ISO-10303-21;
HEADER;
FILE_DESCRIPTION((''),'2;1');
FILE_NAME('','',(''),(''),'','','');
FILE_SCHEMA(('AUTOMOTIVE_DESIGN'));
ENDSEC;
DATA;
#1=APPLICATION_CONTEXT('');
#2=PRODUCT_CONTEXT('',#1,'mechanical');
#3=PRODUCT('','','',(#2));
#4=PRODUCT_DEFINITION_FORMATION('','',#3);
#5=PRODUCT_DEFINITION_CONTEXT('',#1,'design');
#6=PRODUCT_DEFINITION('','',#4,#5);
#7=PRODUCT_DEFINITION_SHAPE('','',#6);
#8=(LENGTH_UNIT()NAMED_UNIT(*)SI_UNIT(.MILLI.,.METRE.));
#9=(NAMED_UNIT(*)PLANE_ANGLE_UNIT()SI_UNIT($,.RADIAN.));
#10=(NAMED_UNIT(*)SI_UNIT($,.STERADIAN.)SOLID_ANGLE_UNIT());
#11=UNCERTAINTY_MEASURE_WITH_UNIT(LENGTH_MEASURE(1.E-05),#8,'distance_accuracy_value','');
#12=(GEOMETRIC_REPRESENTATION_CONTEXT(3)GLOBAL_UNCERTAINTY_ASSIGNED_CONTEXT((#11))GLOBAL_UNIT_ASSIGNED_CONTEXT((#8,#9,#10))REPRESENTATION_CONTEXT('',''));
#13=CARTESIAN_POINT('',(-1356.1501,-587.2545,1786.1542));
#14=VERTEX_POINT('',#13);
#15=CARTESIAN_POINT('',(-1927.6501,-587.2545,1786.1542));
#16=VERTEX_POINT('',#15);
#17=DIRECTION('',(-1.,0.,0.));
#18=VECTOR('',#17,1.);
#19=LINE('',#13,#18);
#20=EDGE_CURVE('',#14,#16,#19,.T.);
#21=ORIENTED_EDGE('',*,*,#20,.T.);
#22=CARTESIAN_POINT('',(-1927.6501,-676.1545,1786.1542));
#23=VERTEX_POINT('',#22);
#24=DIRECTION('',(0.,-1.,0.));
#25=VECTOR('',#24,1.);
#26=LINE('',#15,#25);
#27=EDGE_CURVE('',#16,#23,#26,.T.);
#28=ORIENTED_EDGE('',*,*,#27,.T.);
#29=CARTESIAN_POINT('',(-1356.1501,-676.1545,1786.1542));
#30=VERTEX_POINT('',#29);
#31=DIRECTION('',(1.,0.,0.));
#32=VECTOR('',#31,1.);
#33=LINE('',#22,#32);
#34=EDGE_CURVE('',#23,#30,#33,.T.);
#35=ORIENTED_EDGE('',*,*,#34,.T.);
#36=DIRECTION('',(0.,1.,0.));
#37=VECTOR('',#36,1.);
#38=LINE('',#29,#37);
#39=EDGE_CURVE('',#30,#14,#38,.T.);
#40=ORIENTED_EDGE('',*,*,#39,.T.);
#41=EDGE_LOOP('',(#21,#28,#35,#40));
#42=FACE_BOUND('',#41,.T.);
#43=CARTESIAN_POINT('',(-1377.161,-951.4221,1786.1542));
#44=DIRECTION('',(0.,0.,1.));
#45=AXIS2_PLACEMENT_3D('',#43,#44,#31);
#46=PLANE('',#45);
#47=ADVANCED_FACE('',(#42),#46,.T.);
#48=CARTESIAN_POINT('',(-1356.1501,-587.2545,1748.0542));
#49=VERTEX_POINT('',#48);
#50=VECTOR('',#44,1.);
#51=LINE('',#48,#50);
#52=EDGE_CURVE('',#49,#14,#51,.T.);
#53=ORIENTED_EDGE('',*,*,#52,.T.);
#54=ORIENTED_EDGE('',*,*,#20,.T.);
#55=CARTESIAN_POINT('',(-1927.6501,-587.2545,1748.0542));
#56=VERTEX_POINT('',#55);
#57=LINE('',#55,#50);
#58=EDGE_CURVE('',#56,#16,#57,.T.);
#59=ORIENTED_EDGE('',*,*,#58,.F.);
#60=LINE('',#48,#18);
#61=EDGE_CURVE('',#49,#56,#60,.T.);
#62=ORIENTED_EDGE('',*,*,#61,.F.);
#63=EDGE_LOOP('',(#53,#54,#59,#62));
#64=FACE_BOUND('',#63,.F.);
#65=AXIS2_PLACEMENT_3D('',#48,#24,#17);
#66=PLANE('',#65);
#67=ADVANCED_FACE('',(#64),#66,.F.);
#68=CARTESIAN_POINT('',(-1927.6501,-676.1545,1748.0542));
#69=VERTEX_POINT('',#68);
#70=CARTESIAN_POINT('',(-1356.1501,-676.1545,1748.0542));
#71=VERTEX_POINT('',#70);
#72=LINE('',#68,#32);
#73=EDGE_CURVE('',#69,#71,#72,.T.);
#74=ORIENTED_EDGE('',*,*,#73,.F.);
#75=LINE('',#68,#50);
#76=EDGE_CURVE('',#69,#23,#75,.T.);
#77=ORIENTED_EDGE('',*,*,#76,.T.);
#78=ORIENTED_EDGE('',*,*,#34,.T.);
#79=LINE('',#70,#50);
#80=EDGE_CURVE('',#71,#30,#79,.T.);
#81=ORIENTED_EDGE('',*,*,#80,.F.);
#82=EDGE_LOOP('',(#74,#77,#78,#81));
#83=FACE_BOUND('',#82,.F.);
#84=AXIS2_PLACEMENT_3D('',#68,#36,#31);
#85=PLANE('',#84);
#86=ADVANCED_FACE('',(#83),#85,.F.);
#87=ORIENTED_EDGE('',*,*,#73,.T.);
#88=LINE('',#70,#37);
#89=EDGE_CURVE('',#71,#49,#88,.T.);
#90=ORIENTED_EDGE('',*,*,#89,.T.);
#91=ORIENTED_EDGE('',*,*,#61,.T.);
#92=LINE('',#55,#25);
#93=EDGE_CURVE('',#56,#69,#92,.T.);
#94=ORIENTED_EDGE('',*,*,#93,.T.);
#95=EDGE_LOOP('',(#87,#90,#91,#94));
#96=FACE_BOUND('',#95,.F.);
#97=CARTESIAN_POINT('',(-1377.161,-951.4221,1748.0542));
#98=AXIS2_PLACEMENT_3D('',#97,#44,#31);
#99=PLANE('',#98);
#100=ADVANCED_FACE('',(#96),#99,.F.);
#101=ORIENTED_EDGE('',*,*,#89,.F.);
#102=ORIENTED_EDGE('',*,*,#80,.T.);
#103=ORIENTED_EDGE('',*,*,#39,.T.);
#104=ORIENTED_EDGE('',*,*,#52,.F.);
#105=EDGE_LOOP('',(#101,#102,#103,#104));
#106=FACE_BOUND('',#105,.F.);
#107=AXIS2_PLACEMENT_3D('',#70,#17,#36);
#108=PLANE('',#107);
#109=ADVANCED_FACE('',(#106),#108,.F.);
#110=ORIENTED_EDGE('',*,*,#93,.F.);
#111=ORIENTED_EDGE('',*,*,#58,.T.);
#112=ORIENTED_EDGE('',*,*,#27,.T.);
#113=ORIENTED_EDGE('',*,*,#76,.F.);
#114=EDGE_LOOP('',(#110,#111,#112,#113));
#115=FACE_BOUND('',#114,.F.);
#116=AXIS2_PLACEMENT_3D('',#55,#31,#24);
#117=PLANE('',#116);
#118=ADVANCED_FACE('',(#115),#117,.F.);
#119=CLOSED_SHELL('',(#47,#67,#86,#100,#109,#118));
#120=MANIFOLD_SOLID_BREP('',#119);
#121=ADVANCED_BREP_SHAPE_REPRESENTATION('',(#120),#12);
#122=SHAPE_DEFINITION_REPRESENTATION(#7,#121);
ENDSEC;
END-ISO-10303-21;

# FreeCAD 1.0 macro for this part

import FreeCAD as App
import Part
import Sketcher
Q = App.Units.Quantity

doc = App.newDocument("Part")
body = doc.addObject("PartDesign::Body", "Body")

sketch1 = body.newObject("Sketcher::SketchObject", "Sketch")
sketch1.AttachmentSupport = (doc.getObject("XY_Plane"), [""])
sketch1.MapMode = "FlatFace"
sketch1.AttachmentOffset = App.Placement(App.Vector(0, 0, 1748.0542), App.Rotation())
sketch1.addGeometry([
    Part.LineSegment(App.Vector(-1356, -676, 0), App.Vector(-1356, -587, 0)),
    Part.LineSegment(App.Vector(-1356, -587, 0), App.Vector(-1928, -587, 0)),
    Part.LineSegment(App.Vector(-1928, -587, 0), App.Vector(-1928, -676, 0)),
    Part.LineSegment(App.Vector(-1928, -676, 0), App.Vector(-1356, -676, 0)),
], False)
sketch1.addConstraint([
    Sketcher.Constraint("Coincident", 0, 2, 1, 1),
    Sketcher.Constraint("Coincident", 1, 2, 2, 1),
    Sketcher.Constraint("Coincident", 2, 2, 3, 1),
    Sketcher.Constraint("Coincident", 3, 2, 0, 1),
    Sketcher.Constraint("Vertical", 0),
    Sketcher.Constraint("Horizontal", 1),
    Sketcher.Constraint("Vertical", 2),
    Sketcher.Constraint("Horizontal", 3),
    Sketcher.Constraint("DistanceX", 1, 2, 1, 1, Q("22.5 in")),
    Sketcher.Constraint("DistanceY", 0, 1, 0, 2, Q("3.5 in")),
    Sketcher.Constraint("DistanceX", 0, 2, -1, 1, 1356.15),
    Sketcher.Constraint("DistanceY", 0, 2, -1, 1, 587.2545),
])
pad1 = body.newObject("PartDesign::Pad", "Pad")
pad1.Profile = sketch1
pad1.Length = Q("1.5 in")

doc.recompute()
